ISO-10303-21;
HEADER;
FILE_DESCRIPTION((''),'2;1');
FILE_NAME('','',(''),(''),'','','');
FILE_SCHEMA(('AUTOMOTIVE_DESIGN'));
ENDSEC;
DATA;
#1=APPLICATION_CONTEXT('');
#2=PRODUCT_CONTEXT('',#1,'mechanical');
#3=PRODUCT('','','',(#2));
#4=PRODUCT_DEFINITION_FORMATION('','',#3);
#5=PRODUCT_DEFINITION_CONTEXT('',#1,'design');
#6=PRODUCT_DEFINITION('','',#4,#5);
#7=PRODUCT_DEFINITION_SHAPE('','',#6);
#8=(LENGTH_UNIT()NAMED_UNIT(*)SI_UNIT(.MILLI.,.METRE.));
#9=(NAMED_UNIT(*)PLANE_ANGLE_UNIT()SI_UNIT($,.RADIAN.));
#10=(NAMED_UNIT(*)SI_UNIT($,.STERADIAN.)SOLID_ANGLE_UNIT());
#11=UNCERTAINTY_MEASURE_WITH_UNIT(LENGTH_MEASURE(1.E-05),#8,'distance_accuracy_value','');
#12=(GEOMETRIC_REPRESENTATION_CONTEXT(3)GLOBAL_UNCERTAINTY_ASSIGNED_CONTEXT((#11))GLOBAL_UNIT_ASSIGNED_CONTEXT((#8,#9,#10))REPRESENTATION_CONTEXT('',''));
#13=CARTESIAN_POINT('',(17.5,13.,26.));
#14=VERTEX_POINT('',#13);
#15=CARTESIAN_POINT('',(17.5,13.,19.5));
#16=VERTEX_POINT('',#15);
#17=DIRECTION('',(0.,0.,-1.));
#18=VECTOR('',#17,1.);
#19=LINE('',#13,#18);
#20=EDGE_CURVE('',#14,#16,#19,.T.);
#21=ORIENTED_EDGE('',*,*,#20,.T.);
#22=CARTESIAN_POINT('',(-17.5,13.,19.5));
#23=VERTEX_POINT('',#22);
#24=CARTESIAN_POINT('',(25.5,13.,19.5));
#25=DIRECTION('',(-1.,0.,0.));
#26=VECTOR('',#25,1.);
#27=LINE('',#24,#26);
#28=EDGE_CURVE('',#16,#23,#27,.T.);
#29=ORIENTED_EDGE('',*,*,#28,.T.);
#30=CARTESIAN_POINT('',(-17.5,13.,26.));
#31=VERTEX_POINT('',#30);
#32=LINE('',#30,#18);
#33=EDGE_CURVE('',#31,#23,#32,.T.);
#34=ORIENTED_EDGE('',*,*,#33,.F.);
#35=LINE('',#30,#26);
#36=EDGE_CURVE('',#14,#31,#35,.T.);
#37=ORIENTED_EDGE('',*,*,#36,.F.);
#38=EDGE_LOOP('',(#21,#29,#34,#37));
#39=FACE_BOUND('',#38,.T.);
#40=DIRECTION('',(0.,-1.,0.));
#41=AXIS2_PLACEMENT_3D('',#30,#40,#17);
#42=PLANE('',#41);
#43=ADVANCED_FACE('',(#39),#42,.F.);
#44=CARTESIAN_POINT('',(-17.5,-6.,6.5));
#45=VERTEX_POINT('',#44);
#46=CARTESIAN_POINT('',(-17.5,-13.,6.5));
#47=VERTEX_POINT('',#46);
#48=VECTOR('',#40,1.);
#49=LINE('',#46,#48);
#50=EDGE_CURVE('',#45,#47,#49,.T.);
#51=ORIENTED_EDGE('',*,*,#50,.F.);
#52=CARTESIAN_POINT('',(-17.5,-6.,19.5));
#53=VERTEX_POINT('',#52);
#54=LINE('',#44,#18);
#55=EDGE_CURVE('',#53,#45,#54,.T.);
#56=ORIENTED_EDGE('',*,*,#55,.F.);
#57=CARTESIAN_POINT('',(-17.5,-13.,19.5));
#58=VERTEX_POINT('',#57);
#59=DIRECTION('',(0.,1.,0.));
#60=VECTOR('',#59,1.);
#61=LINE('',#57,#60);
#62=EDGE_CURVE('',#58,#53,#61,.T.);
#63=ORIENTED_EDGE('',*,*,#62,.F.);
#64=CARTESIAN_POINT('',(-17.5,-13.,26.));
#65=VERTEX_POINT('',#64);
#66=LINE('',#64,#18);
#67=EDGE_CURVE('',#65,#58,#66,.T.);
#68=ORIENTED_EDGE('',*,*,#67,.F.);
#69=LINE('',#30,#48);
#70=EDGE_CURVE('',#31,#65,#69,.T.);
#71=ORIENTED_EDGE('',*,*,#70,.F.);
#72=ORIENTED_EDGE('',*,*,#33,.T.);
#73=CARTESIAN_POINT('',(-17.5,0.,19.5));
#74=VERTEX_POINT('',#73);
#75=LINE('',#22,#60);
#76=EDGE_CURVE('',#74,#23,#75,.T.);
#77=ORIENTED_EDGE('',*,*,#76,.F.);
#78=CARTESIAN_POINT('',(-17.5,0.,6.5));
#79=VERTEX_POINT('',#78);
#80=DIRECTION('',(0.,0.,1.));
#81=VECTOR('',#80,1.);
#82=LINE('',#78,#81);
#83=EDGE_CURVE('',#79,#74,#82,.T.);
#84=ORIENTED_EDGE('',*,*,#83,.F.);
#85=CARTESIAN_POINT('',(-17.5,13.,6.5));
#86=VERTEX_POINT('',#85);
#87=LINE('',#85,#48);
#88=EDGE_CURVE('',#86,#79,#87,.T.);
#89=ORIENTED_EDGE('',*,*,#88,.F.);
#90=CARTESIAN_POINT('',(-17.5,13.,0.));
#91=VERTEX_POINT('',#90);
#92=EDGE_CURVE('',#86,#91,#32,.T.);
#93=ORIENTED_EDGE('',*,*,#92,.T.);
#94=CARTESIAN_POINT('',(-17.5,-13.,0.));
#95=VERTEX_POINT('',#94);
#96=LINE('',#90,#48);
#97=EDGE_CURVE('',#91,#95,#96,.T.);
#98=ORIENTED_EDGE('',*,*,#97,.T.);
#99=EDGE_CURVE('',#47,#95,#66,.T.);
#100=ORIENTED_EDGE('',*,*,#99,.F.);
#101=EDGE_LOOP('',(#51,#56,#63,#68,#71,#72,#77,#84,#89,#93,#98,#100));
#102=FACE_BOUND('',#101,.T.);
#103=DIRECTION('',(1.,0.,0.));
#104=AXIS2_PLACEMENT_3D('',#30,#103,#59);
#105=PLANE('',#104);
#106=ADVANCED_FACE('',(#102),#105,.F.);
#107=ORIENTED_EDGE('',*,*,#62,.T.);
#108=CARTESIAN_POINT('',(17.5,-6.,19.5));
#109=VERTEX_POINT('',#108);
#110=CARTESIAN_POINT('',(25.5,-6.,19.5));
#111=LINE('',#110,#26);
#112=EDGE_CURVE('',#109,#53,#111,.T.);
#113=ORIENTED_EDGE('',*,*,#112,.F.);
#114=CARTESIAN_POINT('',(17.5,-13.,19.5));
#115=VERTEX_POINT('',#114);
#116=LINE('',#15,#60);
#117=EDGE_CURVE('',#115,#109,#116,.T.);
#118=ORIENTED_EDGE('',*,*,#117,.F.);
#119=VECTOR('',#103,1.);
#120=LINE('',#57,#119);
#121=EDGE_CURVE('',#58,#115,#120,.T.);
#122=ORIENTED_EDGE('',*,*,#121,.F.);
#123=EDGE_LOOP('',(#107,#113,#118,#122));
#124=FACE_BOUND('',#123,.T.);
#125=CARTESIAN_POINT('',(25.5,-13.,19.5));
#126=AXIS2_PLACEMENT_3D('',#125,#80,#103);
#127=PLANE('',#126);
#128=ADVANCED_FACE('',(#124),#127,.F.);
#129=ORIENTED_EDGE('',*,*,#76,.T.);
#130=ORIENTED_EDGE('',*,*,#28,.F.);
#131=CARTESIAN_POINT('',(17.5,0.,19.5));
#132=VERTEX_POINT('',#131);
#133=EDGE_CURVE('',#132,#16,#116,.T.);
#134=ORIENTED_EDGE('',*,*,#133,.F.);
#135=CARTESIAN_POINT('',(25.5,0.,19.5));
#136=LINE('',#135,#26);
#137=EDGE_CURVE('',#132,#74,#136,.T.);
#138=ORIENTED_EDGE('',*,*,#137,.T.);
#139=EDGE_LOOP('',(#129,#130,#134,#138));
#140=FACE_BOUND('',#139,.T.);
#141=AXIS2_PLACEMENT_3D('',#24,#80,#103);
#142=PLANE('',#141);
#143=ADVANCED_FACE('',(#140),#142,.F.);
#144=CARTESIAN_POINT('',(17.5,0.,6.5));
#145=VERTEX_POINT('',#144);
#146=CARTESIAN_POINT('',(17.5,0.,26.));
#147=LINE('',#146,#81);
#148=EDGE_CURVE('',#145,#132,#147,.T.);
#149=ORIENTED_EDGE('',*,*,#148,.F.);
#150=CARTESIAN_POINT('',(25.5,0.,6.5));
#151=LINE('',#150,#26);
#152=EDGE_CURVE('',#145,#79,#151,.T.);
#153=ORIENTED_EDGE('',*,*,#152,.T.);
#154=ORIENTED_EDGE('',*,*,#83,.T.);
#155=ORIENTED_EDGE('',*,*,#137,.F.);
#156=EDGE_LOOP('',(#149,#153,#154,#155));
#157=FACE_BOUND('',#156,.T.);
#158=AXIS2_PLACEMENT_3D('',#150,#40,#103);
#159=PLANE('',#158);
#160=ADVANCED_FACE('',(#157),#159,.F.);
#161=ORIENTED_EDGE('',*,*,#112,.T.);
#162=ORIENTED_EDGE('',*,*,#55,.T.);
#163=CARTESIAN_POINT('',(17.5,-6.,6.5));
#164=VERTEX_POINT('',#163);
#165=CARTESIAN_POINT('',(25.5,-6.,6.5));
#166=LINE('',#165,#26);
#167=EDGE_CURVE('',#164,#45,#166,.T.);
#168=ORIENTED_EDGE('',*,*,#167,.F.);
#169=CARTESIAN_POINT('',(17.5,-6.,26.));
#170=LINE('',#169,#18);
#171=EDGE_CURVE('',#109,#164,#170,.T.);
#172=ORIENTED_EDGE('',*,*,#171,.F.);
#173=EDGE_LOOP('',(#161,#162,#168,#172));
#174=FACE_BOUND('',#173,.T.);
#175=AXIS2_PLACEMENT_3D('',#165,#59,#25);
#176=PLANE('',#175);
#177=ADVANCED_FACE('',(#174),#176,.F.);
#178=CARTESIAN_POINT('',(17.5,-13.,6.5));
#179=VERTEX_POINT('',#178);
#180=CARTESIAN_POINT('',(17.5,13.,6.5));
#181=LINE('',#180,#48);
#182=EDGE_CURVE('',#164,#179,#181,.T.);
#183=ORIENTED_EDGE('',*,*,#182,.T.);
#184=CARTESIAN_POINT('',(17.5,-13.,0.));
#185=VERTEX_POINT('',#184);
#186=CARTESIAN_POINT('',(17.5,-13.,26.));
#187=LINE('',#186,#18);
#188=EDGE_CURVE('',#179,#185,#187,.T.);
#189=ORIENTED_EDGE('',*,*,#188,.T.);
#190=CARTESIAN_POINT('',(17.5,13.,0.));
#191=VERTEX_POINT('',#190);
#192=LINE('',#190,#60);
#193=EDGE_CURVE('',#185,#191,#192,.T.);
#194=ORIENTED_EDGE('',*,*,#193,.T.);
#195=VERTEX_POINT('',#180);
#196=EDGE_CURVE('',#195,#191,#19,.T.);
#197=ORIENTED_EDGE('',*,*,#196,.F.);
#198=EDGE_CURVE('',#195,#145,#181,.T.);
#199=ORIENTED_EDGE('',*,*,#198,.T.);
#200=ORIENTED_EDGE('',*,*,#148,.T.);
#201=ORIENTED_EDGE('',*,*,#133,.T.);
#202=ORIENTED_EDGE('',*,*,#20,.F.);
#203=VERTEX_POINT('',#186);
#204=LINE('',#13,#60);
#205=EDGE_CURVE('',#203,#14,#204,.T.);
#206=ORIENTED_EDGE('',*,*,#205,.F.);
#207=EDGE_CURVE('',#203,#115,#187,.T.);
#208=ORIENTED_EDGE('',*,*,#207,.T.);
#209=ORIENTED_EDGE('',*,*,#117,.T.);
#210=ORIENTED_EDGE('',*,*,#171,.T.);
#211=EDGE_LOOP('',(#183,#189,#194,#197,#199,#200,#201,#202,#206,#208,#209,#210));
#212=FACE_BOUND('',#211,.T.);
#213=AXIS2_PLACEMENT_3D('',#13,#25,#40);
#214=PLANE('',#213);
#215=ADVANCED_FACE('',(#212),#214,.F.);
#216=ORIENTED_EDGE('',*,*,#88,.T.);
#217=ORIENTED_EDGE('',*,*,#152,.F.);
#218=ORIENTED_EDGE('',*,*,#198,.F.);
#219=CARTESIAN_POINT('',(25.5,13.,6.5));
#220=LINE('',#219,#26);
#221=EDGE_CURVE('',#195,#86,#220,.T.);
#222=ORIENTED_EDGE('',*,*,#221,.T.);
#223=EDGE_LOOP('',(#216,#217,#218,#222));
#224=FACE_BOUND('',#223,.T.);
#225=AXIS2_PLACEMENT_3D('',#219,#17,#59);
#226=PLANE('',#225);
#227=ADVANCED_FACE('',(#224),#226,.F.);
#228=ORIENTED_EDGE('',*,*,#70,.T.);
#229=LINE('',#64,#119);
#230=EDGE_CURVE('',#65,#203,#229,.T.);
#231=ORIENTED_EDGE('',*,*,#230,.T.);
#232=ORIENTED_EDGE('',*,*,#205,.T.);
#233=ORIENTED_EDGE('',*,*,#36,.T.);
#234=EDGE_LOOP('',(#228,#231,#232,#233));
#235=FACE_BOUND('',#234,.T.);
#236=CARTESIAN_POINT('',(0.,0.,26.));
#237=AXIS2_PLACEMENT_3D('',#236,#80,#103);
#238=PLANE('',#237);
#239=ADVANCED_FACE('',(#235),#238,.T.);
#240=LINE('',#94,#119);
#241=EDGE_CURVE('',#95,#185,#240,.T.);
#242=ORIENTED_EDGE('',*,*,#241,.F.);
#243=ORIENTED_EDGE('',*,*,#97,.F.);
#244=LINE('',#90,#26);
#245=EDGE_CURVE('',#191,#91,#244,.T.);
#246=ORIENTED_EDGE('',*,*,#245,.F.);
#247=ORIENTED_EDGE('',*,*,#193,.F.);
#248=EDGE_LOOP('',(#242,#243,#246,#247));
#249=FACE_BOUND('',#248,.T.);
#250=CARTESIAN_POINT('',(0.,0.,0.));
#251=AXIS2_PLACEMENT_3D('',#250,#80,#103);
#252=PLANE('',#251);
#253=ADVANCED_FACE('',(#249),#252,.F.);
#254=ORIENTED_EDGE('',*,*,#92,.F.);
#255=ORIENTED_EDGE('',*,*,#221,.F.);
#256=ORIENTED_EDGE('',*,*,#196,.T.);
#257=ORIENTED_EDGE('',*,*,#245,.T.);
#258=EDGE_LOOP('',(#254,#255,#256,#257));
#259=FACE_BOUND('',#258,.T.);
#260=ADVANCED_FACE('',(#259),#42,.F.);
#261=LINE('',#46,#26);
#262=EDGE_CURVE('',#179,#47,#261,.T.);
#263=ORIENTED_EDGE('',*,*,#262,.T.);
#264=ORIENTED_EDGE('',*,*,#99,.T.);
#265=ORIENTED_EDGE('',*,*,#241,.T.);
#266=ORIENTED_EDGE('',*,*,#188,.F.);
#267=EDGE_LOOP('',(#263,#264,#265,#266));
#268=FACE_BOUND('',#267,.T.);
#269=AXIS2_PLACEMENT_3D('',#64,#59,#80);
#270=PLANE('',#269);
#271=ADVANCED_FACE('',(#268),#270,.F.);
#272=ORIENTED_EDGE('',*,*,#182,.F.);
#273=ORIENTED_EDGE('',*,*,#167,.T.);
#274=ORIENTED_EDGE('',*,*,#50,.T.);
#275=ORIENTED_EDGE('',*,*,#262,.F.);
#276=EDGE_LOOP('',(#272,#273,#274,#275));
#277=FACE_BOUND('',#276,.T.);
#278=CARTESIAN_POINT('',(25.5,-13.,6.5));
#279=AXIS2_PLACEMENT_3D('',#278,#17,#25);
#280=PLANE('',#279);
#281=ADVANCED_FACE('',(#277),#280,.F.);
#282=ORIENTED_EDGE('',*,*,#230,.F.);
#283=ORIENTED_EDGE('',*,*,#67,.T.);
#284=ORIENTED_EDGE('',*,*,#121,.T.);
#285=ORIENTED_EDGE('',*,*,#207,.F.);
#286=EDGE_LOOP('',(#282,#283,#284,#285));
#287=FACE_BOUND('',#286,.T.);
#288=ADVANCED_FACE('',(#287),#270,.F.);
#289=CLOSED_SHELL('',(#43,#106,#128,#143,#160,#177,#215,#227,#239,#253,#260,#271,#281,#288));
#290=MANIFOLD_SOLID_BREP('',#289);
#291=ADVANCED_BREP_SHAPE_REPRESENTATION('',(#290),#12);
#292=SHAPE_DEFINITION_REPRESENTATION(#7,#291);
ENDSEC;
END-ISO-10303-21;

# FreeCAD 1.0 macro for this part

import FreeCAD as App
import Part
import Sketcher
Q = App.Units.Quantity

doc = App.newDocument("Part")
body = doc.addObject("PartDesign::Body", "Body")

# Sketch on XY plane
sketch1 = body.newObject("Sketcher::SketchObject", "Sketch")
sketch1.AttachmentSupport = (doc.getObject("XY_Plane"), [""])
sketch1.MapMode = "FlatFace"
sketch1.addGeometry(Part.LineSegment(App.Vector(-18, 13, 0), App.Vector(-18, -13, 0)), False)
sketch1.addGeometry(Part.LineSegment(App.Vector(-18, -13, 0), App.Vector(18, -13, 0)), False)
sketch1.addGeometry(Part.LineSegment(App.Vector(18, -13, 0), App.Vector(18, 13, 0)), False)
sketch1.addGeometry(Part.LineSegment(App.Vector(18, 13, 0), App.Vector(-18, 13, 0)), False)
sketch1.addConstraint(Sketcher.Constraint("Coincident", 0, 2, 1, 1))
sketch1.addConstraint(Sketcher.Constraint("Coincident", 1, 2, 2, 1))
sketch1.addConstraint(Sketcher.Constraint("Coincident", 2, 2, 3, 1))
sketch1.addConstraint(Sketcher.Constraint("Coincident", 3, 2, 0, 1))
sketch1.addConstraint(Sketcher.Constraint("Vertical", 0))
sketch1.addConstraint(Sketcher.Constraint("Horizontal", 1))
sketch1.addConstraint(Sketcher.Constraint("Vertical", 2))
sketch1.addConstraint(Sketcher.Constraint("Horizontal", 3))
sketch1.addConstraint(Sketcher.Constraint("Symmetric", 0, 2, 2, 2, -1, 1))
sketch1.addConstraint(Sketcher.Constraint("DistanceX", 1, 1, 1, 2, Q("35 mm")))
sketch1.addConstraint(Sketcher.Constraint("DistanceY", 0, 2, 0, 1, Q("26 mm")))
pad1 = body.newObject("PartDesign::Pad", "Pad")
pad1.Profile = sketch1
pad1.Length = 26

# Sketch on YZ plane
sketch2 = body.newObject("Sketcher::SketchObject", "Sketch001")
sketch2.AttachmentSupport = (doc.getObject("YZ_Plane"), [""])
sketch2.MapMode = "FlatFace"
sketch2.AttachmentOffset = App.Placement(App.Vector(0, 0, -17.5), App.Rotation())
sketch2.addGeometry(Part.LineSegment(App.Vector(13, 6, 0), App.Vector(0, 6, 0)), False)
sketch2.addGeometry(Part.LineSegment(App.Vector(0, 6, 0), App.Vector(0, 20, 0)), False)
sketch2.addGeometry(Part.LineSegment(App.Vector(0, 20, 0), App.Vector(13, 20, 0)), False)
sketch2.addGeometry(Part.LineSegment(App.Vector(13, 20, 0), App.Vector(13, 6, 0)), False)
sketch2.addGeometry(Part.LineSegment(App.Vector(-6, 6, 0), App.Vector(-13, 6, 0)), False)
sketch2.addGeometry(Part.LineSegment(App.Vector(-13, 6, 0), App.Vector(-13, 20, 0)), False)
sketch2.addGeometry(Part.LineSegment(App.Vector(-13, 20, 0), App.Vector(-6, 20, 0)), False)
sketch2.addGeometry(Part.LineSegment(App.Vector(-6, 20, 0), App.Vector(-6, 6, 0)), False)
sketch2.addConstraint(Sketcher.Constraint("Coincident", 0, 2, 1, 1))
sketch2.addConstraint(Sketcher.Constraint("Coincident", 1, 2, 2, 1))
sketch2.addConstraint(Sketcher.Constraint("Coincident", 2, 2, 3, 1))
sketch2.addConstraint(Sketcher.Constraint("Coincident", 3, 2, 0, 1))
sketch2.addConstraint(Sketcher.Constraint("Coincident", 4, 2, 5, 1))
sketch2.addConstraint(Sketcher.Constraint("Coincident", 5, 2, 6, 1))
sketch2.addConstraint(Sketcher.Constraint("Coincident", 6, 2, 7, 1))
sketch2.addConstraint(Sketcher.Constraint("Coincident", 7, 2, 4, 1))
sketch2.addConstraint(Sketcher.Constraint("Horizontal", 0))
sketch2.addConstraint(Sketcher.Constraint("Vertical", 1))
sketch2.addConstraint(Sketcher.Constraint("Horizontal", 2))
sketch2.addConstraint(Sketcher.Constraint("Vertical", 3))
sketch2.addConstraint(Sketcher.Constraint("Horizontal", 4))
sketch2.addConstraint(Sketcher.Constraint("Vertical", 5))
sketch2.addConstraint(Sketcher.Constraint("Horizontal", 6))
sketch2.addConstraint(Sketcher.Constraint("Vertical", 7))
sketch2.addConstraint(Sketcher.Constraint("Symmetric", 3, 2, 4, 2, -2))
sketch2.addConstraint(Sketcher.Constraint("PointOnObject", 0, 2, -2))
sketch2.addConstraint(Sketcher.Constraint("Horizontal", 2, 2, 5, 2))
sketch2.addConstraint(Sketcher.Constraint("Equal", 2, 1))
sketch2.addConstraint(Sketcher.Constraint("DistanceX", 0, 2, 0, 1, Q("13 mm")))
sketch2.addConstraint(Sketcher.Constraint("DistanceX", 4, 2, 4, 1, Q("7 mm")))
sketch2.addConstraint(Sketcher.Constraint("DistanceY", -1, 1, 0, 2, Q("6.5 mm")))
pocket1 = body.newObject("PartDesign::Pocket", "Pocket")
pocket1.Profile = sketch2
pocket1.Length = 43
pocket1.Reversed = True

doc.recompute()
